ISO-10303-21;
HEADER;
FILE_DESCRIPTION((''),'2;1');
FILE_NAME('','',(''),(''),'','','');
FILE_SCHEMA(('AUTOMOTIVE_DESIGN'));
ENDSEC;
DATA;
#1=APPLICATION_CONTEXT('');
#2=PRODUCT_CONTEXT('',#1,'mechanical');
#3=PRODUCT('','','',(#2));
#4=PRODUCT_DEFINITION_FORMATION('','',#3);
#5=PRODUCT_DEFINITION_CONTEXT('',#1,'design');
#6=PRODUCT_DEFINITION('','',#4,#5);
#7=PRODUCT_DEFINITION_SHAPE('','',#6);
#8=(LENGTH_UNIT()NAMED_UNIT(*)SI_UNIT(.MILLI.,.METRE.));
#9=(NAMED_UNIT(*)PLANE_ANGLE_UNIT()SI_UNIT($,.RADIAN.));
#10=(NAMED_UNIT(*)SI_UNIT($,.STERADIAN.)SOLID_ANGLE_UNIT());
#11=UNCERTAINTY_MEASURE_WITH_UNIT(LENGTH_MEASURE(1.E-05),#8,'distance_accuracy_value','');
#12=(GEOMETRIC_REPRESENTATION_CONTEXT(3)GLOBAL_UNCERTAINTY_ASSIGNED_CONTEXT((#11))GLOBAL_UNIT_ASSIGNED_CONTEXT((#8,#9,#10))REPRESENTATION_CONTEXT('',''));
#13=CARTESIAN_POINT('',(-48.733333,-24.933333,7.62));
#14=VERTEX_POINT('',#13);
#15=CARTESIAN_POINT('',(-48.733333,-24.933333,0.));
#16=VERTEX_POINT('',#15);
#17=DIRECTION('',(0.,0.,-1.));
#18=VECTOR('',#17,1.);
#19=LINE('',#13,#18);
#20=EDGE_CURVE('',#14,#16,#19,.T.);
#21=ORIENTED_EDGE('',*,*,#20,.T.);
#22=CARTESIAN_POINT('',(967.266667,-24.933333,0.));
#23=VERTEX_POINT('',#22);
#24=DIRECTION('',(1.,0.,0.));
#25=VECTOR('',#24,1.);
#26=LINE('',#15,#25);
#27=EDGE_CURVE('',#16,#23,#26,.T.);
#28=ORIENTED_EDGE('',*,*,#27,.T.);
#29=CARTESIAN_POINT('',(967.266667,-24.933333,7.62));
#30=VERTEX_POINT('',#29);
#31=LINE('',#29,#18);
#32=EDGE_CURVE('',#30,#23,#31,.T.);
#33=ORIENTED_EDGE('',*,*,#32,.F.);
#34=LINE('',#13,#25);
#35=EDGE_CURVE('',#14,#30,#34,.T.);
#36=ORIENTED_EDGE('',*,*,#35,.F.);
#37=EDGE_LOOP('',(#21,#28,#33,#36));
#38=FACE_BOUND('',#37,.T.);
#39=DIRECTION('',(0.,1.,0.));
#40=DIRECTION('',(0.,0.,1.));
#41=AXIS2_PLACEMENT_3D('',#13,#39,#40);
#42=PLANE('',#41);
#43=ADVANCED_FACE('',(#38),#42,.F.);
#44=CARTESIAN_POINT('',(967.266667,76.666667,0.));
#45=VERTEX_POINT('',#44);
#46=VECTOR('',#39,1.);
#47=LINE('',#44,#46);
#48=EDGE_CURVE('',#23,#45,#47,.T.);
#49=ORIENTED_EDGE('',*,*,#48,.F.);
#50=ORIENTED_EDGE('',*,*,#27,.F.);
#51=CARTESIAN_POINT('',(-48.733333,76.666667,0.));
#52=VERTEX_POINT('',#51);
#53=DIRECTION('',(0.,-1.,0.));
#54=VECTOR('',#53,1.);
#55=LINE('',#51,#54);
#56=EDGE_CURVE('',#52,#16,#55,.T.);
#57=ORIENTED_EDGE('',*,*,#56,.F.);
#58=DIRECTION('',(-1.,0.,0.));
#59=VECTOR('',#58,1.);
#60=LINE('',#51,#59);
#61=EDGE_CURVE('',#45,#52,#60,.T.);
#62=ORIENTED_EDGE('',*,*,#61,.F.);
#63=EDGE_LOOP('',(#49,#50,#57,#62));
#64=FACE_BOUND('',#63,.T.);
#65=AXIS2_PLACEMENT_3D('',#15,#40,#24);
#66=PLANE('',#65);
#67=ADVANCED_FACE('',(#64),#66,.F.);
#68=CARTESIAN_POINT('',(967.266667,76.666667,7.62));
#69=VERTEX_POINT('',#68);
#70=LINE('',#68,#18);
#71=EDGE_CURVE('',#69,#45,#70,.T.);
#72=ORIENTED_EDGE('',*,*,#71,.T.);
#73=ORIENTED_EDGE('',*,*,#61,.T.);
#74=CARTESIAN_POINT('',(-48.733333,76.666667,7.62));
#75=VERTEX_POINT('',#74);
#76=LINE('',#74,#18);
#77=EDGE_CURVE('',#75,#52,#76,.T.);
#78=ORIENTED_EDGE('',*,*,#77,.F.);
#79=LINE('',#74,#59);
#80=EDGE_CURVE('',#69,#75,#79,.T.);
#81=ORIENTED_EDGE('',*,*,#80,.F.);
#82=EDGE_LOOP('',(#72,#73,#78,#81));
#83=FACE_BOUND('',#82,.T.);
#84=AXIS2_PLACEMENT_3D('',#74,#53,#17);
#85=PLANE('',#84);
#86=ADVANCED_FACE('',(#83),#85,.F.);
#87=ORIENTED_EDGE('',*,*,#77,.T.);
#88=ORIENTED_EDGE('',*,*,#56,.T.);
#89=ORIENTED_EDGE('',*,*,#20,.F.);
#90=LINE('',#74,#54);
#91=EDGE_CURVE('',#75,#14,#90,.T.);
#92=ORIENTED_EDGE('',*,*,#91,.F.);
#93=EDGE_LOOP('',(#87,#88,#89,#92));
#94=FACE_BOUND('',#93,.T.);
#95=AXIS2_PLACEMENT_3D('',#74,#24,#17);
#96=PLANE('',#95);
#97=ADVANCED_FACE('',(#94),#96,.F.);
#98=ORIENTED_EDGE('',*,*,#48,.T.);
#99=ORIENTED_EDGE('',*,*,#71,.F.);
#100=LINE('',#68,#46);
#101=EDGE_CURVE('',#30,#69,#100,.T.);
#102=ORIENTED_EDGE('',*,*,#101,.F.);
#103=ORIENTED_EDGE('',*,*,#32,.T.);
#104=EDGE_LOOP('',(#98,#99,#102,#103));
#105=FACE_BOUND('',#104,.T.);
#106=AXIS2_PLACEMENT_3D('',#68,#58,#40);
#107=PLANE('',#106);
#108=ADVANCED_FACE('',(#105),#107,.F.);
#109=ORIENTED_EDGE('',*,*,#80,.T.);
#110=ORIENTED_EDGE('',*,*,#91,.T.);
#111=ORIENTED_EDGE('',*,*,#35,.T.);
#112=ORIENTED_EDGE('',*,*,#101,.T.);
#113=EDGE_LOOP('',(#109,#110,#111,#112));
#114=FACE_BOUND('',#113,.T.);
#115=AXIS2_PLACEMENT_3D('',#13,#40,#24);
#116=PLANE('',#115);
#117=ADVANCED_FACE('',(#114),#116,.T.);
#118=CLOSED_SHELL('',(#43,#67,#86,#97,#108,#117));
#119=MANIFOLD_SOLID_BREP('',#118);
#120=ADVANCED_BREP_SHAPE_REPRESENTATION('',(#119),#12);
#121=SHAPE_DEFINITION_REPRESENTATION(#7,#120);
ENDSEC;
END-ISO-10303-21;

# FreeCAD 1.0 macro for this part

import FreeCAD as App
import Part
import Sketcher
from FreeCAD import Vector
Q = App.Units.Quantity


def add_polygon(sketch, points):
    """Adds a closed chain of lines whose ends are joined by coincident constraints."""
    first, n = sketch.GeometryCount, len(points)
    for a, b in zip(points, points[1:] + points[:1]):
        sketch.addGeometry(Part.LineSegment(App.Vector(*a, 0), App.Vector(*b, 0)), False)
    for i in range(n):
        sketch.addConstraint(Sketcher.Constraint("Coincident", first + i, 2, first + (i + 1) % n, 1))

doc = App.newDocument("Part")
params = doc.addObject("Spreadsheet::Sheet", "Params")
for row, (alias, value) in enumerate([
    ("sketch1_width", "40 in"),
    ("sketch1_height", "4 in"),
    ("pad1_length", "0.3 in"),
], start=1):
    params.set(f"A{row}", alias)
    params.set(f"B{row}", "=" + value)
    params.setAlias(f"B{row}", alias)

body = doc.addObject("PartDesign::Body", "Body")

sketch1 = body.newObject("Sketcher::SketchObject", "Sketch")
sketch1.AttachmentSupport = (doc.getObject("XY_Plane"), [""])
sketch1.MapMode = "FlatFace"
add_polygon(sketch1, [(-49, 77), (-49, -25), (967, -25), (967, 77)])
sketch1.addConstraint(Sketcher.Constraint("Vertical", 0))
sketch1.addConstraint(Sketcher.Constraint("Horizontal", 1))
sketch1.addConstraint(Sketcher.Constraint("Vertical", 2))
sketch1.addConstraint(Sketcher.Constraint("Horizontal", 3))
sketch1.addConstraint(Sketcher.Constraint("DistanceX", 1, 1, 1, 2, Q("40 in")))
sketch1.addConstraint(Sketcher.Constraint("DistanceY", 0, 2, 0, 1, Q("4 in")))
sketch1.addConstraint(Sketcher.Constraint("DistanceX", 0, 2, -1, 1, Q("48.733333 mm")))
sketch1.addConstraint(Sketcher.Constraint("DistanceY", 0, 2, -1, 1, Q("24.933333 mm")))
sketch1.setExpression("Constraints[8]", "Params.sketch1_width")
sketch1.setExpression("Constraints[9]", "Params.sketch1_height")
pad1 = body.newObject("PartDesign::Pad", "Pad")
pad1.Profile = sketch1
pad1.setExpression("Length", "Params.pad1_length")

doc.recompute()
